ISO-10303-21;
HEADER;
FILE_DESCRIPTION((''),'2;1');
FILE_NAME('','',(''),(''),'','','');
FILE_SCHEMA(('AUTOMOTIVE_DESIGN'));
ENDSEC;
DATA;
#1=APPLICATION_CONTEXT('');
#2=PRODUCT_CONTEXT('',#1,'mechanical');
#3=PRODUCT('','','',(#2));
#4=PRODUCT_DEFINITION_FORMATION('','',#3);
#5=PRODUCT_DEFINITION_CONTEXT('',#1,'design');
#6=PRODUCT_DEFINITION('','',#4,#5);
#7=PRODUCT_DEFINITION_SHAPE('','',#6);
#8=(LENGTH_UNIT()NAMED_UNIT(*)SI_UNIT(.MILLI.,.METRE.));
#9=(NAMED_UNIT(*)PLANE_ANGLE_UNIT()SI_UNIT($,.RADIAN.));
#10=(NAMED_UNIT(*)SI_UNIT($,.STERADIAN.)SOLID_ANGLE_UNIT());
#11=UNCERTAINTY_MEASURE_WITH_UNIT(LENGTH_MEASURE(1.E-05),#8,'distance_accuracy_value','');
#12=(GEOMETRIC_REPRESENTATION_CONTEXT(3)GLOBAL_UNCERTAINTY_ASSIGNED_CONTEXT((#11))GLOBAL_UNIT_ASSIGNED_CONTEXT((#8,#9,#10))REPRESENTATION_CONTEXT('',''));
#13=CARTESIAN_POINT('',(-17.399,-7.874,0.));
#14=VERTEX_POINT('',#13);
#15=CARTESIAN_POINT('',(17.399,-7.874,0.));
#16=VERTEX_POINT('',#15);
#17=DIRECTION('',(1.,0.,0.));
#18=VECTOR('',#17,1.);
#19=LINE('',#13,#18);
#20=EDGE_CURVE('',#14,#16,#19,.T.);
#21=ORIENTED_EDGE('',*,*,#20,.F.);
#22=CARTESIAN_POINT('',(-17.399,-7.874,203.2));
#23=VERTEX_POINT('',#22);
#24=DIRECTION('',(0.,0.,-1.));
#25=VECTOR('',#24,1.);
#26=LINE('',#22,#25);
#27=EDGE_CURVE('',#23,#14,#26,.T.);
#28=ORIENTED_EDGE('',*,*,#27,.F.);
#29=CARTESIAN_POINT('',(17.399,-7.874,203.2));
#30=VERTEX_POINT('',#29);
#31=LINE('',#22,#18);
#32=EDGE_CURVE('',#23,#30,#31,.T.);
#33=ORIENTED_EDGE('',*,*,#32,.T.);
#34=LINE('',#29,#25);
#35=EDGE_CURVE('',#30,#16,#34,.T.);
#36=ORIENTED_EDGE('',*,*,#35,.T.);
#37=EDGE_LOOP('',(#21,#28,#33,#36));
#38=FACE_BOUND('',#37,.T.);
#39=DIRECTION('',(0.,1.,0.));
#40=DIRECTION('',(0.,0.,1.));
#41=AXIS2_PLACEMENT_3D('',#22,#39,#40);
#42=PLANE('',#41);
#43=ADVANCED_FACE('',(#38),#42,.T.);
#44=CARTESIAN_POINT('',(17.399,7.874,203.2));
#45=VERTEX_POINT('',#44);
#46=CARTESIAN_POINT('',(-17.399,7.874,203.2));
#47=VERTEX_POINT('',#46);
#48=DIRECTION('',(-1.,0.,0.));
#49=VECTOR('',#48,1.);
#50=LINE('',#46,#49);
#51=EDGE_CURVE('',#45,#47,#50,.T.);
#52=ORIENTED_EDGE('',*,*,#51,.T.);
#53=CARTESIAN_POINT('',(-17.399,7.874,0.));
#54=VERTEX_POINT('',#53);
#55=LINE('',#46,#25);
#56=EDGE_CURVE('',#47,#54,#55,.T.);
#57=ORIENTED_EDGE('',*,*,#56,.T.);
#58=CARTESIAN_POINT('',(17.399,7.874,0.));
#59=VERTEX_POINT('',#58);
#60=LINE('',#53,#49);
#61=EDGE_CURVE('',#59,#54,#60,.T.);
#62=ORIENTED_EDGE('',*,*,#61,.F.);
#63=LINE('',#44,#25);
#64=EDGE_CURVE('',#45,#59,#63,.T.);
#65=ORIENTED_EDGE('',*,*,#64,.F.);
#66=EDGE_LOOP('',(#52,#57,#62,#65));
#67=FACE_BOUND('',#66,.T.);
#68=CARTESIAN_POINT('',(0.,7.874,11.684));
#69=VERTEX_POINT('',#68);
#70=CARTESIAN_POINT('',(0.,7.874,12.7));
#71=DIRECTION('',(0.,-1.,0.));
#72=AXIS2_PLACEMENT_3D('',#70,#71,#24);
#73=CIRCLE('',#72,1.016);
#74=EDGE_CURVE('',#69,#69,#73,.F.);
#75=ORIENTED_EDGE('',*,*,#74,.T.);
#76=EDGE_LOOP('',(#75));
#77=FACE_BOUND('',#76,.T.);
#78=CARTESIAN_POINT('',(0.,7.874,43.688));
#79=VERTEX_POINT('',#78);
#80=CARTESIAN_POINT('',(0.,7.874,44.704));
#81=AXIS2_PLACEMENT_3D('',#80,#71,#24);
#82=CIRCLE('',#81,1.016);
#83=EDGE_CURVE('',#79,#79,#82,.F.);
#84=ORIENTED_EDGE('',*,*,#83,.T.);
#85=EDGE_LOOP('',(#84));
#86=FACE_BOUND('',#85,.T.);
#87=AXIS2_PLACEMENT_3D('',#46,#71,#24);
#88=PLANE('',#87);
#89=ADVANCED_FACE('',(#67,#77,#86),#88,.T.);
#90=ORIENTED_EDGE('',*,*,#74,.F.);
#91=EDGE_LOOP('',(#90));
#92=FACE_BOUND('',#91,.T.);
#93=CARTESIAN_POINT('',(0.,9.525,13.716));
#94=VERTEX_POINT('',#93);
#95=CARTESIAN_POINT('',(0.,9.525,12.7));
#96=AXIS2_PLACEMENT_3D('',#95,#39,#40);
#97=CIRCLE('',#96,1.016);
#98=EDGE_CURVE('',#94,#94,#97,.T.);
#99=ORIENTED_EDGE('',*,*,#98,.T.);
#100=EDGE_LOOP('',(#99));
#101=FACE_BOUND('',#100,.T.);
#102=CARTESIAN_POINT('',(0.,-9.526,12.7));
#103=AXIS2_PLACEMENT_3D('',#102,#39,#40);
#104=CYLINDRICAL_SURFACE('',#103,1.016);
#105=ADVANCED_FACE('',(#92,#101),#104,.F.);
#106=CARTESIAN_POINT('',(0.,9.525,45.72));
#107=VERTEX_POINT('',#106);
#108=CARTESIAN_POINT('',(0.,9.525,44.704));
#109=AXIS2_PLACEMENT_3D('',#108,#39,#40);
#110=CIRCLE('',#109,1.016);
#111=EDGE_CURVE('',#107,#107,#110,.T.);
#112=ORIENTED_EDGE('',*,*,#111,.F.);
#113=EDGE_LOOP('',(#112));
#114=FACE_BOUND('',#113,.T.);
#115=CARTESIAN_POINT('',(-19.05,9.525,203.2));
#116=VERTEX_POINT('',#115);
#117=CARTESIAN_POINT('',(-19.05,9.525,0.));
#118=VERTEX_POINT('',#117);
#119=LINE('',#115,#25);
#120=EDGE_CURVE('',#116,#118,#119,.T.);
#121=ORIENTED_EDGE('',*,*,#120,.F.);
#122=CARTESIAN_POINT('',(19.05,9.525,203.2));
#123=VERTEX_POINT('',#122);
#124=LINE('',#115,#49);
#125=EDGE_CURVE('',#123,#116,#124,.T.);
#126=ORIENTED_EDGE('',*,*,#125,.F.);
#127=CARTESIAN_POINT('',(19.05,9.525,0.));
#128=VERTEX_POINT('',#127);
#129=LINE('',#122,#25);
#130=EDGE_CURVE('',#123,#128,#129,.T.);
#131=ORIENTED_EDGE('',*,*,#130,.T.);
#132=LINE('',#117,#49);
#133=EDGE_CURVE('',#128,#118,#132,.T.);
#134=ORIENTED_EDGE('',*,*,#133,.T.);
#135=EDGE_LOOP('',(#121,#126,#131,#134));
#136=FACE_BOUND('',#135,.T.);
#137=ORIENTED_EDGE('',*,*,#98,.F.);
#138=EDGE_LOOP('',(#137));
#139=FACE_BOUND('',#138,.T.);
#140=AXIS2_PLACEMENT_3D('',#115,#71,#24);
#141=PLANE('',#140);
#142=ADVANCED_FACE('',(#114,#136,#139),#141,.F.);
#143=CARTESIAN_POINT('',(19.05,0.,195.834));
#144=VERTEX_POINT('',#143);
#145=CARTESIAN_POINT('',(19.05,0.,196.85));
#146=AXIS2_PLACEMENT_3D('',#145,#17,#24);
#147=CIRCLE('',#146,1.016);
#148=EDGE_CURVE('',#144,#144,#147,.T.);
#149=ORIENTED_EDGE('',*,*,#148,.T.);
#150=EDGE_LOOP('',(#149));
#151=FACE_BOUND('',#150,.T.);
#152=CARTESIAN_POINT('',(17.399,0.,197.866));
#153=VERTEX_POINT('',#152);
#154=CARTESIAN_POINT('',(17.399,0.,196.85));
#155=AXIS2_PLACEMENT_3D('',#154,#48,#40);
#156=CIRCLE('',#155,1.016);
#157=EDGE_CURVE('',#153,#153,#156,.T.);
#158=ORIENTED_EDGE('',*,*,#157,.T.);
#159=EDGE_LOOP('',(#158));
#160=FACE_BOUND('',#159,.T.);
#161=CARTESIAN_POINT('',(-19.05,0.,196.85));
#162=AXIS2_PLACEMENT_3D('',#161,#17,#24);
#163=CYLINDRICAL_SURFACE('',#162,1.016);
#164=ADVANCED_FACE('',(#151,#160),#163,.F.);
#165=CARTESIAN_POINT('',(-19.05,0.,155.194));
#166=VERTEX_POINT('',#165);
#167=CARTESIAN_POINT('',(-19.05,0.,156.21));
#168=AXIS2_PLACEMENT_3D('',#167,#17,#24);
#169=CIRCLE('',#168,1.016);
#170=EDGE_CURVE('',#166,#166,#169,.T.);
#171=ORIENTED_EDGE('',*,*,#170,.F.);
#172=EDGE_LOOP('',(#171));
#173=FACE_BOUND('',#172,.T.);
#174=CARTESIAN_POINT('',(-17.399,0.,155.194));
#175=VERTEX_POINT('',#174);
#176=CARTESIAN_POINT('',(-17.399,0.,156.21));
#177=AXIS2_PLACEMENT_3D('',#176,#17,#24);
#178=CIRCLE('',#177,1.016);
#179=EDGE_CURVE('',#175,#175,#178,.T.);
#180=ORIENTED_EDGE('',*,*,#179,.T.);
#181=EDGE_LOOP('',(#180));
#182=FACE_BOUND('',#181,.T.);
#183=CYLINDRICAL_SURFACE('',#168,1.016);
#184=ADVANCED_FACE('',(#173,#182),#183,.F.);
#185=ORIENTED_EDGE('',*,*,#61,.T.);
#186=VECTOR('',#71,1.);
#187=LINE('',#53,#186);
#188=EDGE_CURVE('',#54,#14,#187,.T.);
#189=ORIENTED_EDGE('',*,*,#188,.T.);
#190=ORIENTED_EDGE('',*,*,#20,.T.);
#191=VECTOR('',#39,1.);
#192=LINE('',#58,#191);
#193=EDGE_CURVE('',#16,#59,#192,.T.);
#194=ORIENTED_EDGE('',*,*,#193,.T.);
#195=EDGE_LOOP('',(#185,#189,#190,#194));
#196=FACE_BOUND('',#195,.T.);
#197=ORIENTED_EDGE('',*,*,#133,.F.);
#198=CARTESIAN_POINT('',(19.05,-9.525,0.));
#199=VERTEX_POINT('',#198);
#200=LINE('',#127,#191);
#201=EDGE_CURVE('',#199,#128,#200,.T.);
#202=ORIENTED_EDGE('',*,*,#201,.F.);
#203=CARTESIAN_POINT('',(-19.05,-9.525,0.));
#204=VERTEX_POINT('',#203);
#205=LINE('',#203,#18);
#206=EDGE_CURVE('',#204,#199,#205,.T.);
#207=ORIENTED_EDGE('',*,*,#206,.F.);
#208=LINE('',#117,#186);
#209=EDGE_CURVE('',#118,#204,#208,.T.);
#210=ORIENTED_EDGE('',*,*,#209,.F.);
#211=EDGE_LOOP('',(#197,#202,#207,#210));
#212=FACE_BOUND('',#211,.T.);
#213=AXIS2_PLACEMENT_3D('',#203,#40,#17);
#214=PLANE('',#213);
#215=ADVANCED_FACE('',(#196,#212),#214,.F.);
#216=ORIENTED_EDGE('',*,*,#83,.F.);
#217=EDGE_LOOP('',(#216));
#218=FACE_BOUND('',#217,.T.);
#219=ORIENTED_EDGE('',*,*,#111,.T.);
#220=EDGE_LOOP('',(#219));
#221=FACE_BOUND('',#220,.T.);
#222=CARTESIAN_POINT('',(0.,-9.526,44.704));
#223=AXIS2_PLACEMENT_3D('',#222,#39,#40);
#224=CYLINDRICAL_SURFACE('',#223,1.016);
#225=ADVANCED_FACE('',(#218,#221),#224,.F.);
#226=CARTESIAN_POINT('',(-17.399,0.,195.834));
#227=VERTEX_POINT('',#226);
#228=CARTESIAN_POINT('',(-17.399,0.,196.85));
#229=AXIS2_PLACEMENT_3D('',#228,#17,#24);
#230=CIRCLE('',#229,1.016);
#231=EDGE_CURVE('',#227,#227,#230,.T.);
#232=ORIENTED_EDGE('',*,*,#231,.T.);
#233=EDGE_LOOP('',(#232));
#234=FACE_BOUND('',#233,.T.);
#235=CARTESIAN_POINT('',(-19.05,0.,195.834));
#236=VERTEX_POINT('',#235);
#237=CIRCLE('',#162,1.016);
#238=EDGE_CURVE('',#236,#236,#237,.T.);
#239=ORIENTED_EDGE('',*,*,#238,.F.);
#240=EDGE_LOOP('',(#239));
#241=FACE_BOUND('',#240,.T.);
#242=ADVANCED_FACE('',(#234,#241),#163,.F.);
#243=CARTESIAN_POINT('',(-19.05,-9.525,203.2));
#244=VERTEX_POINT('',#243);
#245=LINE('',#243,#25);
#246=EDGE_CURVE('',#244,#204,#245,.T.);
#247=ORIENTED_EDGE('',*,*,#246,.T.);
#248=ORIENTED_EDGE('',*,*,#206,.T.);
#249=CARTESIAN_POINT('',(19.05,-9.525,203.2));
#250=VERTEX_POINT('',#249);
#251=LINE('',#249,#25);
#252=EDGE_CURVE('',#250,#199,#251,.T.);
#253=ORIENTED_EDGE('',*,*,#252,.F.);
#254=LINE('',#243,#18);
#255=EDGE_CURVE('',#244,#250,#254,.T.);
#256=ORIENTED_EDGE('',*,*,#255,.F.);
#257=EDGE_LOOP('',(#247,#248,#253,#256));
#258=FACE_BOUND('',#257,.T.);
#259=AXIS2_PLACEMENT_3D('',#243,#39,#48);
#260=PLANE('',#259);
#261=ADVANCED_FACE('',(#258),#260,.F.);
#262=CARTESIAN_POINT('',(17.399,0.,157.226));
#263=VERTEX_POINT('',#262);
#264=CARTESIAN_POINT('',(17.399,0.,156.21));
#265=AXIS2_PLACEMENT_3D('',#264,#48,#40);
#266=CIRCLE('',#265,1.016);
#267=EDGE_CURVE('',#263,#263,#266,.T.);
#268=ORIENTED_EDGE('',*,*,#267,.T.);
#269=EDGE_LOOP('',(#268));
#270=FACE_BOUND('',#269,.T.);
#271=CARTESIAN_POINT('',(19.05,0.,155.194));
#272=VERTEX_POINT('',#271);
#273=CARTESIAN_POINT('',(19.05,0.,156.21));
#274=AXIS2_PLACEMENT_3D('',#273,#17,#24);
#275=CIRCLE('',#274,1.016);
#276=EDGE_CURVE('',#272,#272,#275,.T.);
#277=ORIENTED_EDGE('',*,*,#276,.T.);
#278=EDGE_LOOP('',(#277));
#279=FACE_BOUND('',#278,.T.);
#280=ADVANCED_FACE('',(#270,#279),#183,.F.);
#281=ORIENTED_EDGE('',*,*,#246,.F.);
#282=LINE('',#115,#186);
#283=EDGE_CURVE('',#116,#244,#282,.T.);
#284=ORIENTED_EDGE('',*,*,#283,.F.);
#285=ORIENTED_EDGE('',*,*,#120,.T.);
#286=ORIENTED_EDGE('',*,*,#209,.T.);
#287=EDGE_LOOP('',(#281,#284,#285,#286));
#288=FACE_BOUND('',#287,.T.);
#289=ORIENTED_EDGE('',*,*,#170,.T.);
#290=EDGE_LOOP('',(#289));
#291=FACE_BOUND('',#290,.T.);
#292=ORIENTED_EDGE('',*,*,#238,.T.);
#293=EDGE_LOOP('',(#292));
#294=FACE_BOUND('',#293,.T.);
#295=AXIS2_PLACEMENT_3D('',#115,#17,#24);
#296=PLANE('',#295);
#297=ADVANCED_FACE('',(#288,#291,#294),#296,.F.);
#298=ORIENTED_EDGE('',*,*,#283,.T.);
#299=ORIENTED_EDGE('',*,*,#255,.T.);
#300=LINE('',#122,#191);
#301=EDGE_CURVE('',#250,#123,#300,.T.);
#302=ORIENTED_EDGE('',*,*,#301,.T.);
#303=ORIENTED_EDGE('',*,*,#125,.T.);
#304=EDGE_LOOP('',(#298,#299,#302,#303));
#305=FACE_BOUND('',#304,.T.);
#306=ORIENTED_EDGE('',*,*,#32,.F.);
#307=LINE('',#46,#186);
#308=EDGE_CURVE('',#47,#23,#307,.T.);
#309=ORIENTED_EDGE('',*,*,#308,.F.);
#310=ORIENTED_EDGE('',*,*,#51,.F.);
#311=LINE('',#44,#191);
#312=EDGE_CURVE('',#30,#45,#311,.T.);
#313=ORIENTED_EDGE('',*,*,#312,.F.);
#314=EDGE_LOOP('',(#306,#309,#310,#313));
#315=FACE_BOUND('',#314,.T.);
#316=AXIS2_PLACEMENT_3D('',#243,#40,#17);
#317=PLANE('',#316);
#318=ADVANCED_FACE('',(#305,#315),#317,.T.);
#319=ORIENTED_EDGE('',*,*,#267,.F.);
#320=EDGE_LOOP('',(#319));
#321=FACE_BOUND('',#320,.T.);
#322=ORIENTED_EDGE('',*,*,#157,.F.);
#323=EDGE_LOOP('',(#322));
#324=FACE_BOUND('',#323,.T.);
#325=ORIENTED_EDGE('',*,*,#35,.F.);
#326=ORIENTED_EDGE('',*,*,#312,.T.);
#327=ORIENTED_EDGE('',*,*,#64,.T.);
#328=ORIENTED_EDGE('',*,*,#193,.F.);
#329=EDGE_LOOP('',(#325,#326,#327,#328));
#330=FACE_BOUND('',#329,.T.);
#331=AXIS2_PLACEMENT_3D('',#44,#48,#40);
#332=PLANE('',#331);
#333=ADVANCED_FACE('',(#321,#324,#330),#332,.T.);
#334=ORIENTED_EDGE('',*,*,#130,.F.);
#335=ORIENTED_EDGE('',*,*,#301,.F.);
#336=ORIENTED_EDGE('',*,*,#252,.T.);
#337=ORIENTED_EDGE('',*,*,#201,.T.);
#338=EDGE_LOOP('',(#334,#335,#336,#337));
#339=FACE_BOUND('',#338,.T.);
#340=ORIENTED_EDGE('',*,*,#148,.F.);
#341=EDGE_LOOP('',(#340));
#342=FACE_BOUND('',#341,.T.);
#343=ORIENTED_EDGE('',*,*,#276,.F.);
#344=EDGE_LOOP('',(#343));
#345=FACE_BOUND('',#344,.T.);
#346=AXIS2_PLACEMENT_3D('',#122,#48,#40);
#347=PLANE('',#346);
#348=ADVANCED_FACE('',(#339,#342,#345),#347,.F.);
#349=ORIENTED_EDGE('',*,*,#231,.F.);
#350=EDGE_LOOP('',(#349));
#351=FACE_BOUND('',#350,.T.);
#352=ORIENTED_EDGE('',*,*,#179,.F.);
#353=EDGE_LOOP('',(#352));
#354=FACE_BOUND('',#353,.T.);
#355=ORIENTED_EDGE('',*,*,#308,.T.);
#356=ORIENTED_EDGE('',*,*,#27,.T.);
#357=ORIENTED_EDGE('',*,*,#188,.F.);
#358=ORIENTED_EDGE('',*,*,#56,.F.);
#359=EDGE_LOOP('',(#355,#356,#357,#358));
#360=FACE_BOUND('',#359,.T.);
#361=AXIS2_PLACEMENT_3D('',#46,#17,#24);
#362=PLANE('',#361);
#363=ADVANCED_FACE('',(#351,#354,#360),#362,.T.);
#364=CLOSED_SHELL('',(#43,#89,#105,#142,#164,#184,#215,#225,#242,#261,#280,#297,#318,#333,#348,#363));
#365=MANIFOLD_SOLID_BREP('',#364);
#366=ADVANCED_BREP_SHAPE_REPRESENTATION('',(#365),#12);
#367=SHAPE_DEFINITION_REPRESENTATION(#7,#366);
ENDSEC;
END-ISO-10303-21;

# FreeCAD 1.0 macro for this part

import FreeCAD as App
import Part
import Sketcher

V = App.Vector
Q = App.Units.Quantity

doc = App.newDocument("Part")
params = doc.addObject("Spreadsheet::Sheet", "Params")
for row, (alias, value) in enumerate([
    ("sketch1_width", "1.5 in"),
    ("sketch1_width2", "1.37 in"),
    ("sketch1_height", "0.75 in"),
    ("sketch1_height2", "0.62 in"),
    ("pad1_length", "8 in"),
    ("sketch2_diameter", "0.08 in"),
    ("sketch3_diameter", "0.08 in"),
    ("sketch4_diameter", "0.08 in"),
], start=1):
    params.set(f"A{row}", alias)
    params.set(f"B{row}", "=" + value)
    params.setAlias(f"B{row}", alias)

body = doc.addObject("PartDesign::Body", "Body")

# Sketch on XY plane
sketch1 = body.newObject("Sketcher::SketchObject", "Sketch")
sketch1.AttachmentSupport = (doc.getObject("XY_Plane"), [""])
sketch1.MapMode = "FlatFace"
sketch1.addGeometry([
    Part.LineSegment(V(-19, 10, 0), V(-19, -10, 0)),  # 0
    Part.LineSegment(V(-19, -10, 0), V(19, -10, 0)),  # 1
    Part.LineSegment(V(19, -10, 0), V(19, 10, 0)),  # 2
    Part.LineSegment(V(19, 10, 0), V(-19, 10, 0)),  # 3
    Part.LineSegment(V(17, -8, 0), V(-17, -8, 0)),  # 4
    Part.LineSegment(V(-17, -8, 0), V(-17, 8, 0)),  # 5
    Part.LineSegment(V(-17, 8, 0), V(17, 8, 0)),  # 6
    Part.LineSegment(V(17, 8, 0), V(17, -8, 0)),  # 7
], False)
sketch1.addConstraint([
    Sketcher.Constraint("Coincident", 0, 2, 1, 1),
    Sketcher.Constraint("Coincident", 1, 2, 2, 1),
    Sketcher.Constraint("Coincident", 2, 2, 3, 1),
    Sketcher.Constraint("Coincident", 3, 2, 0, 1),
    Sketcher.Constraint("Coincident", 4, 2, 5, 1),
    Sketcher.Constraint("Coincident", 5, 2, 6, 1),
    Sketcher.Constraint("Coincident", 6, 2, 7, 1),
    Sketcher.Constraint("Coincident", 7, 2, 4, 1),
    Sketcher.Constraint("Vertical", 0),
    Sketcher.Constraint("Horizontal", 1),
    Sketcher.Constraint("Vertical", 2),
    Sketcher.Constraint("Horizontal", 3),
    Sketcher.Constraint("Horizontal", 4),
    Sketcher.Constraint("Vertical", 5),
    Sketcher.Constraint("Horizontal", 6),
    Sketcher.Constraint("Vertical", 7),
    Sketcher.Constraint("Symmetric", 0, 2, 2, 2, -1, 1),
    Sketcher.Constraint("Symmetric", 4, 2, 6, 2, -1, 1),
    Sketcher.Constraint("DistanceX", 1, 1, 1, 2, Q("1.5 in")),
    Sketcher.Constraint("DistanceX", 4, 2, 4, 1, Q("1.37 in")),
    Sketcher.Constraint("DistanceY", 0, 2, 0, 1, Q("0.75 in")),
    Sketcher.Constraint("DistanceY", 5, 1, 5, 2, Q("0.62 in")),
])
sketch1.setExpression("Constraints[18]", "Params.sketch1_width")
sketch1.setExpression("Constraints[19]", "Params.sketch1_width2")
sketch1.setExpression("Constraints[20]", "Params.sketch1_height")
sketch1.setExpression("Constraints[21]", "Params.sketch1_height2")
pad1 = body.newObject("PartDesign::Pad", "Pad")
pad1.Profile = sketch1
pad1.setExpression("Length", "Params.pad1_length")

# Sketch on YZ plane
sketch2 = body.newObject("Sketcher::SketchObject", "Sketch001")
sketch2.AttachmentSupport = (doc.getObject("YZ_Plane"), [""])
sketch2.MapMode = "FlatFace"
sketch2.AttachmentOffset = App.Placement(V(0, 0, 0.75 * 25.4), App.Rotation())
sketch2.addGeometry([
    Part.Circle(V(0, 196.8, 0), V(0, 0, 1), 1),
    Part.Circle(V(0, 156.2, 0), V(0, 0, 1), 1),
], False)
sketch2.addConstraint([
    Sketcher.Constraint("Equal", 0, 1),
    Sketcher.Constraint("PointOnObject", 0, 3, -2),
    Sketcher.Constraint("PointOnObject", 1, 3, -2),
    Sketcher.Constraint("Diameter", 0, Q("0.08 in")),
    Sketcher.Constraint("DistanceY", 1, 3, 0, 3, Q("1.6 in")),
    Sketcher.Constraint("DistanceY", -1, 1, 0, 3, Q("7.75 in")),
])
sketch2.setExpression("Constraints[3]", "Params.sketch2_diameter")
pocket1 = body.newObject("PartDesign::Pocket", "Pocket")
pocket1.Profile = sketch2
pocket1.Type = "ThroughAll"

# Sketch on XZ plane
sketch3 = body.newObject("Sketcher::SketchObject", "Sketch002")
sketch3.AttachmentSupport = (doc.getObject("XZ_Plane"), [""])
sketch3.MapMode = "FlatFace"
sketch3.AttachmentOffset = App.Placement(V(0, 0, -0.375 * 25.4), App.Rotation())
sketch3.addGeometry(Part.Circle(V(0, 12.7, 0), V(0, 0, 1), 1), False)
sketch3.addConstraint([
    Sketcher.Constraint("PointOnObject", 0, 3, -2),
    Sketcher.Constraint("Diameter", 0, Q("0.08 in")),
    Sketcher.Constraint("DistanceY", -1, 1, 0, 3, Q("0.5 in")),
])
sketch3.setExpression("Constraints[1]", "Params.sketch3_diameter")
pocket2 = body.newObject("PartDesign::Pocket", "Pocket001")
pocket2.Profile = sketch3
pocket2.Type = "UpToFirst"
pocket2.Reversed = True

# Sketch on XZ plane
sketch4 = body.newObject("Sketcher::SketchObject", "Sketch003")
sketch4.AttachmentSupport = (doc.getObject("XZ_Plane"), [""])
sketch4.MapMode = "FlatFace"
sketch4.AttachmentOffset = App.Placement(V(0, 0, -0.375 * 25.4), App.Rotation())
sketch4.addGeometry(Part.Circle(V(0, 44.7, 0), V(0, 0, 1), 1), False)
sketch4.addConstraint([
    Sketcher.Constraint("PointOnObject", 0, 3, -2),
    Sketcher.Constraint("Diameter", 0, Q("0.08 in")),
    Sketcher.Constraint("DistanceY", -1, 1, 0, 3, Q("1.76 in")),
])
sketch4.setExpression("Constraints[1]", "Params.sketch4_diameter")
pocket3 = body.newObject("PartDesign::Pocket", "Pocket002")
pocket3.Profile = sketch4
pocket3.Type = "UpToFirst"
pocket3.Reversed = True

doc.recompute()
